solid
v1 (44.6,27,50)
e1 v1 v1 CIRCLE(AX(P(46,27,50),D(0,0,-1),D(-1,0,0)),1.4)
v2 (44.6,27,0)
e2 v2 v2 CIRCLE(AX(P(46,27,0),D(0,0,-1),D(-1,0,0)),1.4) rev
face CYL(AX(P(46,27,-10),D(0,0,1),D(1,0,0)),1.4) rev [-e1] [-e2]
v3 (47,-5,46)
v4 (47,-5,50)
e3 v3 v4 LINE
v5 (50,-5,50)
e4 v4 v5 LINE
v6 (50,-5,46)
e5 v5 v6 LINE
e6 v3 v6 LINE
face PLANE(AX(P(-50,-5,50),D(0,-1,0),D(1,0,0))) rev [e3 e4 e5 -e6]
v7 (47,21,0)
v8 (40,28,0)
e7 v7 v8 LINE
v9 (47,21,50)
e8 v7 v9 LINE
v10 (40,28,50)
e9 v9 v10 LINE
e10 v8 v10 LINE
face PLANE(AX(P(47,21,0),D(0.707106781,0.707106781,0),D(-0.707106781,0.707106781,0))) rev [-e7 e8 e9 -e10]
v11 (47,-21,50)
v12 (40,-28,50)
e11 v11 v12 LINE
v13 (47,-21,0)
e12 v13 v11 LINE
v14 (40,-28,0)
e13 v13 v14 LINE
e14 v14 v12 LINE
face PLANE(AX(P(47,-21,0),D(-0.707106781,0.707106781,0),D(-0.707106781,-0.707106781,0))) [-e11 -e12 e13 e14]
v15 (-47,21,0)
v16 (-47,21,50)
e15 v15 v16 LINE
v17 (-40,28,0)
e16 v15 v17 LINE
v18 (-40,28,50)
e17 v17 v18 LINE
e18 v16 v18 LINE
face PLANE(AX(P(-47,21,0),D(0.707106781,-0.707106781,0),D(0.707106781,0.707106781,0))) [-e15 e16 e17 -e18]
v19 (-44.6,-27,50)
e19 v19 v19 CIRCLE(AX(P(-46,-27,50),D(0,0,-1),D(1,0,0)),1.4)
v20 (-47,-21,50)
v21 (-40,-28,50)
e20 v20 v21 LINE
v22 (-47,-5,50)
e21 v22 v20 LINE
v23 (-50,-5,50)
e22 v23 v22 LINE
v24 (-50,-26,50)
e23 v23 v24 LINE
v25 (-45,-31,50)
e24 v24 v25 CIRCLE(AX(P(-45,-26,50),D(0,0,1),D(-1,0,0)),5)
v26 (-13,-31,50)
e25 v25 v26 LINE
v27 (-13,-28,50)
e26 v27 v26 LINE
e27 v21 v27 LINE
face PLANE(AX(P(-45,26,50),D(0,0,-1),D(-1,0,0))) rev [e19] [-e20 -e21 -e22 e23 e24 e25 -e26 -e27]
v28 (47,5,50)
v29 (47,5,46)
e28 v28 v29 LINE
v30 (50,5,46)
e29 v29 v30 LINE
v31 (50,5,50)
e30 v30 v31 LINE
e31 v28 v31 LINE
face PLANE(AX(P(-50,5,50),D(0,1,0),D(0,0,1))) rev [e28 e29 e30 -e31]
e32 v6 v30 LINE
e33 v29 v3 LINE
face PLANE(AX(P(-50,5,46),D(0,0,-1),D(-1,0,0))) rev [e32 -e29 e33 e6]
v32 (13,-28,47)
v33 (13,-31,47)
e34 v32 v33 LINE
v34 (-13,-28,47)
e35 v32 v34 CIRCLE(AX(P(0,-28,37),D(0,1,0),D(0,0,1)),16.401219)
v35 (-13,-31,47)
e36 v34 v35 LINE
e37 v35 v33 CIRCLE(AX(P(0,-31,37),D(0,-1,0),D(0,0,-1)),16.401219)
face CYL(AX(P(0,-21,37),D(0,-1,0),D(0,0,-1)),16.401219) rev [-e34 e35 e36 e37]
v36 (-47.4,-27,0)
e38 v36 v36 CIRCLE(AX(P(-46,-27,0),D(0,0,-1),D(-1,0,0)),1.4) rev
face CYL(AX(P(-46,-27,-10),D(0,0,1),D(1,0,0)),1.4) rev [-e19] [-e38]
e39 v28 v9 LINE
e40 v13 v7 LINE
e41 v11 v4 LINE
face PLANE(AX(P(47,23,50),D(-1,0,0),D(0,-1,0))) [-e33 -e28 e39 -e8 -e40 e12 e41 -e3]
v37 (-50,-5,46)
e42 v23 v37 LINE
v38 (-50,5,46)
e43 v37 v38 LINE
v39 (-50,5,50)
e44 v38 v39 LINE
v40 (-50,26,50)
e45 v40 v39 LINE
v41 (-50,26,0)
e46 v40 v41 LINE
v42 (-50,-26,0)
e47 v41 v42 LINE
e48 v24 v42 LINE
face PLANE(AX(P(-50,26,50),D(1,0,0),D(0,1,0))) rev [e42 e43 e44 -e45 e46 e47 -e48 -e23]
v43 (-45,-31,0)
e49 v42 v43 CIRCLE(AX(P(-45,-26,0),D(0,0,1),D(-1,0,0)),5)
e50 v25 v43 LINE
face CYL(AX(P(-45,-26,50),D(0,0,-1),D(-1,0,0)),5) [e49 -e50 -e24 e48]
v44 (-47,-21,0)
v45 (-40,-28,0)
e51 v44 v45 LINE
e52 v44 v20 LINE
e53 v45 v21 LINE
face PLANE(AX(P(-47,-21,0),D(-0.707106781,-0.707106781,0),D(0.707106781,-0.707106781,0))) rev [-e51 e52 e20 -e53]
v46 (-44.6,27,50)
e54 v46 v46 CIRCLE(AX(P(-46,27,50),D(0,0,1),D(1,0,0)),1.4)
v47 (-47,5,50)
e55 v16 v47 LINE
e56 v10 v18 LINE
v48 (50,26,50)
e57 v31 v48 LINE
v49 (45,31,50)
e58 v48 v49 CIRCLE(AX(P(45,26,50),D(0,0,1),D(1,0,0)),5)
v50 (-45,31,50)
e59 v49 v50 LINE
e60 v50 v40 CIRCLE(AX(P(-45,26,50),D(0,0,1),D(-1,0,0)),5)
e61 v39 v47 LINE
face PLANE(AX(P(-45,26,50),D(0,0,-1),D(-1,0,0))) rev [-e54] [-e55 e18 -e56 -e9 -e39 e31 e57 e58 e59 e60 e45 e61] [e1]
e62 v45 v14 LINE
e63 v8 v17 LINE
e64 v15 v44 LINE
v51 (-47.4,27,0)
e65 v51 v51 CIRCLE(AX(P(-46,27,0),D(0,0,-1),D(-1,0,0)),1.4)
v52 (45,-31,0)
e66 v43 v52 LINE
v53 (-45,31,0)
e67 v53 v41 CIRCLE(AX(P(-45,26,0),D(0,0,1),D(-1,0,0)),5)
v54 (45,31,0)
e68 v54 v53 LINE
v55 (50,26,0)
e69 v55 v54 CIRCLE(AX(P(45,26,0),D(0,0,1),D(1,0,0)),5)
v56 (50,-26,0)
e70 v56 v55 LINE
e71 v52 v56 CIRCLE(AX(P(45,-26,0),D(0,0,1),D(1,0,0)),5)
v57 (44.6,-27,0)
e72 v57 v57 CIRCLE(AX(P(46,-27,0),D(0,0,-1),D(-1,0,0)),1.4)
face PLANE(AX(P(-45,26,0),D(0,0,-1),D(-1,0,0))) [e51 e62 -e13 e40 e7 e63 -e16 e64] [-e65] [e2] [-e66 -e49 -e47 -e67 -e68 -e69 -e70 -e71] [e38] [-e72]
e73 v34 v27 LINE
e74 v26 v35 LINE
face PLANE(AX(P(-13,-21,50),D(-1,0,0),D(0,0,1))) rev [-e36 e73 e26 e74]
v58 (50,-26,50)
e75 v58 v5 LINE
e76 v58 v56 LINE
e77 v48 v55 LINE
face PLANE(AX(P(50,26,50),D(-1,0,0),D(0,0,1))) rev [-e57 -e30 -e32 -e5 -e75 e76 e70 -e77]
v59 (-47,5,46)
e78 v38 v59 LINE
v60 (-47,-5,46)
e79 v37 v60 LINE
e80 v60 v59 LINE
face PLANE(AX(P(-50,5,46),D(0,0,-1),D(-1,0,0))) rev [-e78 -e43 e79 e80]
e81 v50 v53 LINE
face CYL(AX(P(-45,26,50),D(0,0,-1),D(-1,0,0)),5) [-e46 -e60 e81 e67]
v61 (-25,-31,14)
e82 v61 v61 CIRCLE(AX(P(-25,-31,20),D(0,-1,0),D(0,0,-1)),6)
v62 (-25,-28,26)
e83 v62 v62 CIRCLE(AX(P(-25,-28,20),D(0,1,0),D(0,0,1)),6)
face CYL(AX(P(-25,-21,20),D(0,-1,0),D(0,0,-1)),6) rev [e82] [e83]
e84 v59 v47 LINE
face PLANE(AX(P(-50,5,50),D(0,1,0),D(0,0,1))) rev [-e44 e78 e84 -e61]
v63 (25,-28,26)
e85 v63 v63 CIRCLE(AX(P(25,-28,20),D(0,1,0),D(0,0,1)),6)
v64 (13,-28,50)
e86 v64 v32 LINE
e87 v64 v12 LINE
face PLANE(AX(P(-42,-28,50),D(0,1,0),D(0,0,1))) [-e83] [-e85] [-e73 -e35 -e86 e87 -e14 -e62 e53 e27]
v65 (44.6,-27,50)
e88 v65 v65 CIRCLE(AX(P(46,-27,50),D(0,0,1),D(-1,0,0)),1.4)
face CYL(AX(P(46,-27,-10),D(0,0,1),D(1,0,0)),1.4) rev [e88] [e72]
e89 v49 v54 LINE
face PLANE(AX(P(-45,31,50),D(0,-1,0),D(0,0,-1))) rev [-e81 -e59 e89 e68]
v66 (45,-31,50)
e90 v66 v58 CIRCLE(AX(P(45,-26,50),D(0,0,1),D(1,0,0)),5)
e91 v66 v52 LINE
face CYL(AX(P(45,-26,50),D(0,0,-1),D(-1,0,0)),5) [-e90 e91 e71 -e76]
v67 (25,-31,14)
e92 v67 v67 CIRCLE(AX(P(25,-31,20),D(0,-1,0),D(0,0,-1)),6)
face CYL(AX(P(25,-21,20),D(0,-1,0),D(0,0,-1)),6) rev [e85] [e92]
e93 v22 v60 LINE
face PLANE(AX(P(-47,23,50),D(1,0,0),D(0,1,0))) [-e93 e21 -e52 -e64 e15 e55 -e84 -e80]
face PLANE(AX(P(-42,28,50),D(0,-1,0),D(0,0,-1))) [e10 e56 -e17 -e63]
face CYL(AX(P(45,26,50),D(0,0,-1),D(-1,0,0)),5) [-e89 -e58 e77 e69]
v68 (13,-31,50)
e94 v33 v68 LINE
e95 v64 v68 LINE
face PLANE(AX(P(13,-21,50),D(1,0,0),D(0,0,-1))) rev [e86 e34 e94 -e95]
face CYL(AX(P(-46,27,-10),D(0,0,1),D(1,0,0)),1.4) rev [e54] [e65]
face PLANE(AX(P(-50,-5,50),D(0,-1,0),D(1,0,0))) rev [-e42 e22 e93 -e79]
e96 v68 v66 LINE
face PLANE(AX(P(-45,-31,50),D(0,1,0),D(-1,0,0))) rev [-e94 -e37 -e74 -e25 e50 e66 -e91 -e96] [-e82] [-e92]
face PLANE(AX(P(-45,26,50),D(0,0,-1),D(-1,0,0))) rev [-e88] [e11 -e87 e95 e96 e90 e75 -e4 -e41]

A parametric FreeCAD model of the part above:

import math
import FreeCAD as App
import Part
import Sketcher
from FreeCAD import Vector
Q = App.Units.Quantity


def add_polygon(sketch, points):
    """Adds a closed chain of lines whose ends are joined by coincident constraints."""
    first, n = sketch.GeometryCount, len(points)
    for a, b in zip(points, points[1:] + points[:1]):
        sketch.addGeometry(Part.LineSegment(App.Vector(*a, 0), App.Vector(*b, 0)), False)
    for i in range(n):
        sketch.addConstraint(Sketcher.Constraint("Coincident", first + i, 2, first + (i + 1) % n, 1))

doc = App.newDocument("Part")
body = doc.addObject("PartDesign::Body", "Body")

sketch1 = body.newObject("Sketcher::SketchObject", "Sketch")
sketch1.AttachmentSupport = (doc.getObject("XY_Plane"), [""])
sketch1.MapMode = "FlatFace"
sketch1.addGeometry(Part.LineSegment(Vector(45, 31, 0), Vector(-45, 31, 0)), False)
sketch1.addGeometry(Part.ArcOfCircle(Part.Circle(Vector(-45, 26, 0), Vector(0, 0, 1), 5), math.radians(90), math.radians(180)), False)
sketch1.addGeometry(Part.LineSegment(Vector(-50, 26, 0), Vector(-50, -26, 0)), False)
sketch1.addGeometry(Part.ArcOfCircle(Part.Circle(Vector(-45, -26, 0), Vector(0, 0, 1), 5), math.radians(180), math.radians(270)), False)
sketch1.addGeometry(Part.LineSegment(Vector(-45, -31, 0), Vector(45, -31, 0)), False)
sketch1.addGeometry(Part.ArcOfCircle(Part.Circle(Vector(45, -26, 0), Vector(0, 0, 1), 5), math.radians(-90), math.radians(0)), False)
sketch1.addGeometry(Part.LineSegment(Vector(50, -26, 0), Vector(50, 26, 0)), False)
sketch1.addGeometry(Part.ArcOfCircle(Part.Circle(Vector(45, 26, 0), Vector(0, 0, 1), 5), math.radians(0), math.radians(90)), False)
sketch1.addGeometry(Part.LineSegment(Vector(-42, 28, 0), Vector(42, 28, 0)), False)
sketch1.addGeometry(Part.ArcOfCircle(Part.Circle(Vector(42, 23, 0), Vector(0, 0, 1), 5), math.radians(0), math.radians(90)), False)
sketch1.addGeometry(Part.LineSegment(Vector(47, 23, 0), Vector(47, -23, 0)), False)
sketch1.addGeometry(Part.ArcOfCircle(Part.Circle(Vector(42, -23, 0), Vector(0, 0, 1), 5), math.radians(-90), math.radians(0)), False)
sketch1.addGeometry(Part.LineSegment(Vector(42, -28, 0), Vector(-42, -28, 0)), False)
sketch1.addGeometry(Part.ArcOfCircle(Part.Circle(Vector(-42, -23, 0), Vector(0, 0, 1), 5), math.radians(180), math.radians(270)), False)
sketch1.addGeometry(Part.LineSegment(Vector(-47, -23, 0), Vector(-47, 23, 0)), False)
sketch1.addGeometry(Part.ArcOfCircle(Part.Circle(Vector(-42, 23, 0), Vector(0, 0, 1), 5), math.radians(90), math.radians(180)), False)
sketch1.addConstraint(Sketcher.Constraint("Tangent", 0, 2, 1, 1))
sketch1.addConstraint(Sketcher.Constraint("Tangent", 1, 2, 2, 1))
sketch1.addConstraint(Sketcher.Constraint("Tangent", 2, 2, 3, 1))
sketch1.addConstraint(Sketcher.Constraint("Tangent", 3, 2, 4, 1))
sketch1.addConstraint(Sketcher.Constraint("Tangent", 4, 2, 5, 1))
sketch1.addConstraint(Sketcher.Constraint("Tangent", 5, 2, 6, 1))
sketch1.addConstraint(Sketcher.Constraint("Tangent", 6, 2, 7, 1))
sketch1.addConstraint(Sketcher.Constraint("Tangent", 7, 2, 0, 1))
sketch1.addConstraint(Sketcher.Constraint("Tangent", 8, 2, 9, 2))
sketch1.addConstraint(Sketcher.Constraint("Tangent", 9, 1, 10, 1))
sketch1.addConstraint(Sketcher.Constraint("Tangent", 10, 2, 11, 2))
sketch1.addConstraint(Sketcher.Constraint("Tangent", 11, 1, 12, 1))
sketch1.addConstraint(Sketcher.Constraint("Tangent", 12, 2, 13, 2))
sketch1.addConstraint(Sketcher.Constraint("Tangent", 13, 1, 14, 1))
sketch1.addConstraint(Sketcher.Constraint("Tangent", 14, 2, 15, 2))
sketch1.addConstraint(Sketcher.Constraint("Tangent", 15, 1, 8, 1))
sketch1.addConstraint(Sketcher.Constraint("Horizontal", 0))
sketch1.addConstraint(Sketcher.Constraint("Vertical", 2))
sketch1.addConstraint(Sketcher.Constraint("Horizontal", 4))
sketch1.addConstraint(Sketcher.Constraint("Vertical", 6))
sketch1.addConstraint(Sketcher.Constraint("Horizontal", 8))
sketch1.addConstraint(Sketcher.Constraint("Vertical", 10))
sketch1.addConstraint(Sketcher.Constraint("Horizontal", 12))
sketch1.addConstraint(Sketcher.Constraint("Vertical", 14))
sketch1.addConstraint(Sketcher.Constraint("Equal", 1, 3))
sketch1.addConstraint(Sketcher.Constraint("Equal", 3, 5))
sketch1.addConstraint(Sketcher.Constraint("Equal", 5, 7))
sketch1.addConstraint(Sketcher.Constraint("Equal", 7, 9))
sketch1.addConstraint(Sketcher.Constraint("Equal", 9, 11))
sketch1.addConstraint(Sketcher.Constraint("Equal", 11, 13))
sketch1.addConstraint(Sketcher.Constraint("Equal", 13, 15))
sketch1.addConstraint(Sketcher.Constraint("Symmetric", 1, 3, 5, 3, -1, 1))
sketch1.addConstraint(Sketcher.Constraint("Symmetric", 9, 3, 13, 3, -1, 1))
sketch1.addConstraint(Sketcher.Constraint("Radius", 1, Q("5 mm")))
sketch1.addConstraint(Sketcher.Constraint("DistanceX", 0, 2, 0, 1, Q("90 mm")))
sketch1.addConstraint(Sketcher.Constraint("DistanceX", 8, 1, 8, 2, Q("84 mm")))
sketch1.addConstraint(Sketcher.Constraint("DistanceY", 2, 2, 2, 1, Q("52 mm")))
sketch1.addConstraint(Sketcher.Constraint("DistanceY", 10, 2, 10, 1, Q("46 mm")))
pad1 = body.newObject("PartDesign::Pad", "Pad")
pad1.Profile = sketch1
pad1.Length = 50

sketch2 = body.newObject("Sketcher::SketchObject", "Sketch001")
sketch2.AttachmentSupport = (doc.getObject("XY_Plane"), [""])
sketch2.MapMode = "FlatFace"
sketch2.AttachmentOffset = App.Placement(Vector(0, 0, 50), App.Rotation())
add_polygon(sketch2, [(-47, 28), (-47, 21), (-40, 28)])
sketch2.addConstraint(Sketcher.Constraint("Vertical", 0))
sketch2.addConstraint(Sketcher.Constraint("Horizontal", 2))
sketch2.addConstraint(Sketcher.Constraint("Equal", 2, 0))
sketch2.addConstraint(Sketcher.Constraint("DistanceX", 2, 2, 2, 1, Q("7 mm")))
sketch2.addConstraint(Sketcher.Constraint("DistanceX", 0, 2, -1, 1, Q("47 mm")))
sketch2.addConstraint(Sketcher.Constraint("DistanceY", -1, 1, 0, 2, Q("21 mm")))
pad2 = body.newObject("PartDesign::Pad", "Pad001")
pad2.Profile = sketch2
pad2.Length = 50
pad2.Reversed = True

sketch3 = body.newObject("Sketcher::SketchObject", "Sketch002")
sketch3.AttachmentSupport = (doc.getObject("XY_Plane"), [""])
sketch3.MapMode = "FlatFace"
sketch3.AttachmentOffset = App.Placement(Vector(0, 0, 50), App.Rotation())
sketch3.addGeometry(Part.Circle(Vector(-46, 27, 0), Vector(0, 0, 1), 1.4), False)
sketch3.addConstraint(Sketcher.Constraint("Diameter", 0, Q("2.8 mm")))
sketch3.addConstraint(Sketcher.Constraint("DistanceX", 0, 3, -1, 1, Q("46 mm")))
sketch3.addConstraint(Sketcher.Constraint("DistanceY", -1, 1, 0, 3, Q("27 mm")))
pocket1 = body.newObject("PartDesign::Pocket", "Pocket")
pocket1.Profile = sketch3
pocket1.Length = 60
doc.recompute()

mirrored = body.newObject("PartDesign::Mirrored", "Mirrored")
mirrored.Originals = [pad2, pocket1]
mirrored.MirrorPlane = (doc.getObject("YZ_Plane"), [""])
body.Tip = mirrored
doc.recompute()

mirrored2 = body.newObject("PartDesign::Mirrored", "Mirrored001")
mirrored2.Originals = [pad2, pocket1]
mirrored2.MirrorPlane = (doc.getObject("XZ_Plane"), [""])
body.Tip = mirrored2

sketch4 = body.newObject("Sketcher::SketchObject", "Sketch003")
sketch4.AttachmentSupport = (doc.getObject("XY_Plane"), [""])
sketch4.MapMode = "FlatFace"
sketch4.AttachmentOffset = App.Placement(Vector(0, 0, 50), App.Rotation())
add_polygon(sketch4, [(47, -28), (47, -21), (40, -28)])
sketch4.addConstraint(Sketcher.Constraint("Vertical", 0))
sketch4.addConstraint(Sketcher.Constraint("Horizontal", 2))
sketch4.addConstraint(Sketcher.Constraint("Equal", 2, 0))
sketch4.addConstraint(Sketcher.Constraint("DistanceX", 2, 1, 2, 2, Q("7 mm")))
sketch4.addConstraint(Sketcher.Constraint("DistanceX", -1, 1, 0, 2, Q("47 mm")))
sketch4.addConstraint(Sketcher.Constraint("DistanceY", 0, 2, -1, 1, Q("21 mm")))
pad3 = body.newObject("PartDesign::Pad", "Pad002")
pad3.Profile = sketch4
pad3.Length = 50
pad3.Reversed = True

sketch5 = body.newObject("Sketcher::SketchObject", "Sketch004")
sketch5.AttachmentSupport = (doc.getObject("XY_Plane"), [""])
sketch5.MapMode = "FlatFace"
sketch5.AttachmentOffset = App.Placement(Vector(0, 0, 50), App.Rotation())
sketch5.addGeometry(Part.Circle(Vector(46, -27, 0), Vector(0, 0, 1), 1.4), False)
sketch5.addConstraint(Sketcher.Constraint("Diameter", 0, Q("2.8 mm")))
sketch5.addConstraint(Sketcher.Constraint("DistanceX", -1, 1, 0, 3, Q("46 mm")))
sketch5.addConstraint(Sketcher.Constraint("DistanceY", 0, 3, -1, 1, Q("27 mm")))
pocket2 = body.newObject("PartDesign::Pocket", "Pocket001")
pocket2.Profile = sketch5
pocket2.Length = 60

sketch6 = body.newObject("Sketcher::SketchObject", "Sketch005")
sketch6.AttachmentSupport = (doc.getObject("XZ_Plane"), [""])
sketch6.MapMode = "FlatFace"
sketch6.AttachmentOffset = App.Placement(Vector(0, 0, 31), App.Rotation())
sketch6.addGeometry(Part.LineSegment(Vector(13, 50, 0), Vector(-13, 50, 0)), False)
sketch6.addGeometry(Part.LineSegment(Vector(-13, 50, 0), Vector(-13, 47, 0)), False)
sketch6.addGeometry(Part.ArcOfCircle(Part.Circle(Vector(0, 37, 0), Vector(0, 0, 1), 16.4), math.radians(142), math.radians(398)), False)
sketch6.addGeometry(Part.LineSegment(Vector(13, 47, 0), Vector(13, 50, 0)), False)
sketch6.addConstraint(Sketcher.Constraint("Coincident", 0, 2, 1, 1))
sketch6.addConstraint(Sketcher.Constraint("Coincident", 1, 2, 2, 1))
sketch6.addConstraint(Sketcher.Constraint("Coincident", 2, 2, 3, 1))
sketch6.addConstraint(Sketcher.Constraint("Coincident", 3, 2, 0, 1))
sketch6.addConstraint(Sketcher.Constraint("Horizontal", 0))
sketch6.addConstraint(Sketcher.Constraint("Vertical", 1))
sketch6.addConstraint(Sketcher.Constraint("Vertical", 3))
sketch6.addConstraint(Sketcher.Constraint("Symmetric", 1, 2, 2, 2, -2))
sketch6.addConstraint(Sketcher.Constraint("DistanceX", 0, 2, 0, 1, Q("26 mm")))
sketch6.addConstraint(Sketcher.Constraint("DistanceY", 1, 2, 1, 1, Q("3 mm")))
sketch6.addConstraint(Sketcher.Constraint("DistanceY", -1, 1, 2, 3, Q("37 mm")))
sketch6.addConstraint(Sketcher.Constraint("DistanceY", -1, 1, 0, 2, Q("50 mm")))
pocket3 = body.newObject("PartDesign::Pocket", "Pocket002")
pocket3.Profile = sketch6
pocket3.Length = 10

sketch7 = body.newObject("Sketcher::SketchObject", "Sketch006")
sketch7.AttachmentSupport = (doc.getObject("XZ_Plane"), [""])
sketch7.MapMode = "FlatFace"
sketch7.AttachmentOffset = App.Placement(Vector(0, 0, 31), App.Rotation())
sketch7.addGeometry(Part.Circle(Vector(-25, 20, 0), Vector(0, 0, 1), 6), False)
sketch7.addGeometry(Part.Circle(Vector(25, 20, 0), Vector(0, 0, 1), 6), False)
sketch7.addConstraint(Sketcher.Constraint("Equal", 0, 1))
sketch7.addConstraint(Sketcher.Constraint("Symmetric", 0, 3, 1, 3, -2))
sketch7.addConstraint(Sketcher.Constraint("Diameter", 0, Q("12 mm")))
sketch7.addConstraint(Sketcher.Constraint("DistanceX", 0, 3, -1, 1, Q("25 mm")))
sketch7.addConstraint(Sketcher.Constraint("DistanceY", -1, 1, 0, 3, Q("20 mm")))
pocket4 = body.newObject("PartDesign::Pocket", "Pocket003")
pocket4.Profile = sketch7
pocket4.Length = 10

sketch8 = body.newObject("Sketcher::SketchObject", "Sketch007")
sketch8.AttachmentSupport = (doc.getObject("YZ_Plane"), [""])
sketch8.MapMode = "FlatFace"
sketch8.AttachmentOffset = App.Placement(Vector(0, 0, 50), App.Rotation())
add_polygon(sketch8, [(5, 50), (-5, 50), (-5, 46), (5, 46)])
sketch8.addConstraint(Sketcher.Constraint("Horizontal", 0))
sketch8.addConstraint(Sketcher.Constraint("Vertical", 1))
sketch8.addConstraint(Sketcher.Constraint("Horizontal", 2))
sketch8.addConstraint(Sketcher.Constraint("Vertical", 3))
sketch8.addConstraint(Sketcher.Constraint("DistanceX", 0, 2, 0, 1, Q("10 mm")))
sketch8.addConstraint(Sketcher.Constraint("DistanceY", 1, 2, 1, 1, Q("4 mm")))
sketch8.addConstraint(Sketcher.Constraint("DistanceX", 0, 2, -1, 1, Q("5 mm")))
sketch8.addConstraint(Sketcher.Constraint("DistanceY", -1, 1, 0, 2, Q("50 mm")))
pocket5 = body.newObject("PartDesign::Pocket", "Pocket004")
pocket5.Profile = sketch8
pocket5.Length = 100

doc.recompute()
